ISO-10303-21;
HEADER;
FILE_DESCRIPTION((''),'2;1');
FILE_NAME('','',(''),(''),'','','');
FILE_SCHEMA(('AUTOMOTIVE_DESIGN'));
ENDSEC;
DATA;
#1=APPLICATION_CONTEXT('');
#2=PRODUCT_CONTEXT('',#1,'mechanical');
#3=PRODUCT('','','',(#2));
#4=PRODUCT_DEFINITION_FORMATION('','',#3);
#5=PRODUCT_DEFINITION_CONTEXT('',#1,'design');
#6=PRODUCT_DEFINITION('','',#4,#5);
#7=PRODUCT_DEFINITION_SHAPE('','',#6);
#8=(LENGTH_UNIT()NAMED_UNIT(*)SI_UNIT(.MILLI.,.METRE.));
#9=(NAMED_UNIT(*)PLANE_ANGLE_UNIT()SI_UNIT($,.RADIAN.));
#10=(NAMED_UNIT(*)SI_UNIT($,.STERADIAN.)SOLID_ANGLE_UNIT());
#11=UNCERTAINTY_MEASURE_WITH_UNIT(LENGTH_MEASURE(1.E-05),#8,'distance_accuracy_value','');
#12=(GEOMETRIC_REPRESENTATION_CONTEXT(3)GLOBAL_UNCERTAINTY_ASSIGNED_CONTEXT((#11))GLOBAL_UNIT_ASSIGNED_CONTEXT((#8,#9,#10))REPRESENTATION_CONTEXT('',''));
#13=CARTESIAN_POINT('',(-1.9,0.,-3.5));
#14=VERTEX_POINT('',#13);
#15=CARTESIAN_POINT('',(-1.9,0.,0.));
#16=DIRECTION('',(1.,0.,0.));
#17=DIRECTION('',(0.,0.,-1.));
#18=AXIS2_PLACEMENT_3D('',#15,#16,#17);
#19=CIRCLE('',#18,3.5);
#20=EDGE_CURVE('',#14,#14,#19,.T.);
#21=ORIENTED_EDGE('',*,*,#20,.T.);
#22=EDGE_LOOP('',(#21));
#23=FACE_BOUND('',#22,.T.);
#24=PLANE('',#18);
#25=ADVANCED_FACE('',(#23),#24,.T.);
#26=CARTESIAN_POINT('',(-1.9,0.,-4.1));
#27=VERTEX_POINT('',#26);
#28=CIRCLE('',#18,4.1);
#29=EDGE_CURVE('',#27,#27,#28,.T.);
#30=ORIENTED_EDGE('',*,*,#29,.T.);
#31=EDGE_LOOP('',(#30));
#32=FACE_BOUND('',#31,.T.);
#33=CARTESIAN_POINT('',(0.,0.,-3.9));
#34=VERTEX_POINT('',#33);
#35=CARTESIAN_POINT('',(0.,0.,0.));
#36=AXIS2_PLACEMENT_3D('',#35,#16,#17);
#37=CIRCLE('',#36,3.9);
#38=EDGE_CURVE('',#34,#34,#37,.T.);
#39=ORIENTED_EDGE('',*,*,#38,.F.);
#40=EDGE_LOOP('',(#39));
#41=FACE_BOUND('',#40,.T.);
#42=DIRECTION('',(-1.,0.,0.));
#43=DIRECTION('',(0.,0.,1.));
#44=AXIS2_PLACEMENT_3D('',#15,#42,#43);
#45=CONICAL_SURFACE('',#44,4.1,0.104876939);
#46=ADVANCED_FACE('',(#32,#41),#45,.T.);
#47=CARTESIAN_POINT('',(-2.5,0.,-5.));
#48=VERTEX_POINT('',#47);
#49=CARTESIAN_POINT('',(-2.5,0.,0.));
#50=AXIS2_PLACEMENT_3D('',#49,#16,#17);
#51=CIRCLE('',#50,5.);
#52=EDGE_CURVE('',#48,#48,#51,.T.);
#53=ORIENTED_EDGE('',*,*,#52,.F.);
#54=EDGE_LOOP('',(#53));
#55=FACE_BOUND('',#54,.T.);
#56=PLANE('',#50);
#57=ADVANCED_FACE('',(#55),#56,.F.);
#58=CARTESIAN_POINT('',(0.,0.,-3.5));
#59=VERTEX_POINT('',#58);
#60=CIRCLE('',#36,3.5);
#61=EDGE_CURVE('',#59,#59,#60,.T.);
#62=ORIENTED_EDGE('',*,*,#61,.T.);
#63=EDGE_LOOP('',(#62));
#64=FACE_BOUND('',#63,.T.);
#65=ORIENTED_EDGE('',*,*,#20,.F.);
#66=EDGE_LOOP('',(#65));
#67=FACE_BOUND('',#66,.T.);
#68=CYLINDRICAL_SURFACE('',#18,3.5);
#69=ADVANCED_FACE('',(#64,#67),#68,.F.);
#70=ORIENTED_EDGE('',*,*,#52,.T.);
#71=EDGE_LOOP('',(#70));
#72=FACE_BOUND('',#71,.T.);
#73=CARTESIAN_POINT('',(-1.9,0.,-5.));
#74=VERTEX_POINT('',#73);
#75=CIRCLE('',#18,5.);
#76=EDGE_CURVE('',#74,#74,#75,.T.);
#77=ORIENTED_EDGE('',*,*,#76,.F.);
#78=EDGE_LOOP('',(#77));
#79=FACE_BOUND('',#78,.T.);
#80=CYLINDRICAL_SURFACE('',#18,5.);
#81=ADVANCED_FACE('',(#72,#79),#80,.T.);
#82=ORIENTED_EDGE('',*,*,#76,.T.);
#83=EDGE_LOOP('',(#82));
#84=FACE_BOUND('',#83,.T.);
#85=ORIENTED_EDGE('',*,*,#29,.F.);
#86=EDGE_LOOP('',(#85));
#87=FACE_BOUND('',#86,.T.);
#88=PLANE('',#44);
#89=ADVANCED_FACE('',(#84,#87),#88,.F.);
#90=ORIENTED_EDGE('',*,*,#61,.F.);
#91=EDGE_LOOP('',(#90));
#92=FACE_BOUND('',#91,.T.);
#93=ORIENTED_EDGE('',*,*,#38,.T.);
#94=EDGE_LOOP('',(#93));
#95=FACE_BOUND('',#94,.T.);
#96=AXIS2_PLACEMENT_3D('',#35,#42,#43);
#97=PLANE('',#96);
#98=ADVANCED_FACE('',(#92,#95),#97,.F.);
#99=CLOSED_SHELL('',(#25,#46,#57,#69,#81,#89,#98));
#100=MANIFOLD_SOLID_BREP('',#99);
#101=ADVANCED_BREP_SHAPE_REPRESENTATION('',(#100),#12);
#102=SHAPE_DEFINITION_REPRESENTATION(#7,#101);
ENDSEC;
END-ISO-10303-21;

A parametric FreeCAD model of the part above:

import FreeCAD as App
import Part
import Sketcher
from FreeCAD import Vector
Q = App.Units.Quantity

doc = App.newDocument("Part")
body = doc.addObject("PartDesign::Body", "Body")

# Sketch on XY plane
sketch1 = doc.addObject("Sketcher::SketchObject", "Sketch")
body.addObject(sketch1)
sketch1.AttachmentSupport = (doc.XY_Plane, [""])
sketch1.MapMode = "FlatFace"
sketch1.addGeometry(Part.LineSegment(Vector(-2.5, 0, 0), Vector(-1.9, 0, 0)), False)
sketch1.addGeometry(Part.LineSegment(Vector(-1.9, 0, 0), Vector(-1.9, 3.5, 0)), False)
sketch1.addGeometry(Part.LineSegment(Vector(-1.9, 3.5, 0), Vector(0, 3.5, 0)), False)
sketch1.addGeometry(Part.LineSegment(Vector(0, 3.5, 0), Vector(0, 3.9, 0)), False)
sketch1.addGeometry(Part.LineSegment(Vector(0, 3.9, 0), Vector(-1.9, 4.1, 0)), False)
sketch1.addGeometry(Part.LineSegment(Vector(-1.9, 4.1, 0), Vector(-1.9, 5, 0)), False)
sketch1.addGeometry(Part.LineSegment(Vector(-1.9, 5, 0), Vector(-2.5, 5, 0)), False)
sketch1.addGeometry(Part.LineSegment(Vector(-2.5, 5, 0), Vector(-2.5, 0, 0)), False)
sketch1.addConstraint(Sketcher.Constraint("Coincident", 0, 2, 1, 1))
sketch1.addConstraint(Sketcher.Constraint("Coincident", 1, 2, 2, 1))
sketch1.addConstraint(Sketcher.Constraint("Coincident", 2, 2, 3, 1))
sketch1.addConstraint(Sketcher.Constraint("Coincident", 3, 2, 4, 1))
sketch1.addConstraint(Sketcher.Constraint("Coincident", 4, 2, 5, 1))
sketch1.addConstraint(Sketcher.Constraint("Coincident", 5, 2, 6, 1))
sketch1.addConstraint(Sketcher.Constraint("Coincident", 6, 2, 7, 1))
sketch1.addConstraint(Sketcher.Constraint("Coincident", 7, 2, 0, 1))
sketch1.addConstraint(Sketcher.Constraint("Horizontal", 0))
sketch1.addConstraint(Sketcher.Constraint("Vertical", 1))
sketch1.addConstraint(Sketcher.Constraint("Horizontal", 2))
sketch1.addConstraint(Sketcher.Constraint("Vertical", 3))
sketch1.addConstraint(Sketcher.Constraint("Vertical", 5))
sketch1.addConstraint(Sketcher.Constraint("Horizontal", 6))
sketch1.addConstraint(Sketcher.Constraint("Vertical", 7))
sketch1.addConstraint(Sketcher.Constraint("PointOnObject", 0, 2, -1))
sketch1.addConstraint(Sketcher.Constraint("PointOnObject", 2, 2, -2))
sketch1.addConstraint(Sketcher.Constraint("Vertical", 1, 2, 4, 2))
sketch1.addConstraint(Sketcher.Constraint("DistanceY", 7, 2, 7, 1, Q("5 mm")))
sketch1.addConstraint(Sketcher.Constraint("DistanceX", 0, 1, 0, 2, Q("0.6 mm")))
sketch1.addConstraint(Sketcher.Constraint("DistanceX", 2, 1, 2, 2, Q("1.9 mm")))
sketch1.addConstraint(Sketcher.Constraint("DistanceY", 1, 1, 1, 2, Q("3.5 mm")))
sketch1.addConstraint(Sketcher.Constraint("DistanceY", 3, 1, 3, 2, Q("0.4 mm")))
sketch1.addConstraint(Sketcher.Constraint("DistanceY", 5, 1, 5, 2, Q("0.9 mm")))
revolution = doc.addObject("PartDesign::Revolution", "Revolution")
body.addObject(revolution)
revolution.Profile = sketch1
revolution.ReferenceAxis = (sketch1, ["H_Axis"])
revolution.Angle = 360

doc.recompute()
